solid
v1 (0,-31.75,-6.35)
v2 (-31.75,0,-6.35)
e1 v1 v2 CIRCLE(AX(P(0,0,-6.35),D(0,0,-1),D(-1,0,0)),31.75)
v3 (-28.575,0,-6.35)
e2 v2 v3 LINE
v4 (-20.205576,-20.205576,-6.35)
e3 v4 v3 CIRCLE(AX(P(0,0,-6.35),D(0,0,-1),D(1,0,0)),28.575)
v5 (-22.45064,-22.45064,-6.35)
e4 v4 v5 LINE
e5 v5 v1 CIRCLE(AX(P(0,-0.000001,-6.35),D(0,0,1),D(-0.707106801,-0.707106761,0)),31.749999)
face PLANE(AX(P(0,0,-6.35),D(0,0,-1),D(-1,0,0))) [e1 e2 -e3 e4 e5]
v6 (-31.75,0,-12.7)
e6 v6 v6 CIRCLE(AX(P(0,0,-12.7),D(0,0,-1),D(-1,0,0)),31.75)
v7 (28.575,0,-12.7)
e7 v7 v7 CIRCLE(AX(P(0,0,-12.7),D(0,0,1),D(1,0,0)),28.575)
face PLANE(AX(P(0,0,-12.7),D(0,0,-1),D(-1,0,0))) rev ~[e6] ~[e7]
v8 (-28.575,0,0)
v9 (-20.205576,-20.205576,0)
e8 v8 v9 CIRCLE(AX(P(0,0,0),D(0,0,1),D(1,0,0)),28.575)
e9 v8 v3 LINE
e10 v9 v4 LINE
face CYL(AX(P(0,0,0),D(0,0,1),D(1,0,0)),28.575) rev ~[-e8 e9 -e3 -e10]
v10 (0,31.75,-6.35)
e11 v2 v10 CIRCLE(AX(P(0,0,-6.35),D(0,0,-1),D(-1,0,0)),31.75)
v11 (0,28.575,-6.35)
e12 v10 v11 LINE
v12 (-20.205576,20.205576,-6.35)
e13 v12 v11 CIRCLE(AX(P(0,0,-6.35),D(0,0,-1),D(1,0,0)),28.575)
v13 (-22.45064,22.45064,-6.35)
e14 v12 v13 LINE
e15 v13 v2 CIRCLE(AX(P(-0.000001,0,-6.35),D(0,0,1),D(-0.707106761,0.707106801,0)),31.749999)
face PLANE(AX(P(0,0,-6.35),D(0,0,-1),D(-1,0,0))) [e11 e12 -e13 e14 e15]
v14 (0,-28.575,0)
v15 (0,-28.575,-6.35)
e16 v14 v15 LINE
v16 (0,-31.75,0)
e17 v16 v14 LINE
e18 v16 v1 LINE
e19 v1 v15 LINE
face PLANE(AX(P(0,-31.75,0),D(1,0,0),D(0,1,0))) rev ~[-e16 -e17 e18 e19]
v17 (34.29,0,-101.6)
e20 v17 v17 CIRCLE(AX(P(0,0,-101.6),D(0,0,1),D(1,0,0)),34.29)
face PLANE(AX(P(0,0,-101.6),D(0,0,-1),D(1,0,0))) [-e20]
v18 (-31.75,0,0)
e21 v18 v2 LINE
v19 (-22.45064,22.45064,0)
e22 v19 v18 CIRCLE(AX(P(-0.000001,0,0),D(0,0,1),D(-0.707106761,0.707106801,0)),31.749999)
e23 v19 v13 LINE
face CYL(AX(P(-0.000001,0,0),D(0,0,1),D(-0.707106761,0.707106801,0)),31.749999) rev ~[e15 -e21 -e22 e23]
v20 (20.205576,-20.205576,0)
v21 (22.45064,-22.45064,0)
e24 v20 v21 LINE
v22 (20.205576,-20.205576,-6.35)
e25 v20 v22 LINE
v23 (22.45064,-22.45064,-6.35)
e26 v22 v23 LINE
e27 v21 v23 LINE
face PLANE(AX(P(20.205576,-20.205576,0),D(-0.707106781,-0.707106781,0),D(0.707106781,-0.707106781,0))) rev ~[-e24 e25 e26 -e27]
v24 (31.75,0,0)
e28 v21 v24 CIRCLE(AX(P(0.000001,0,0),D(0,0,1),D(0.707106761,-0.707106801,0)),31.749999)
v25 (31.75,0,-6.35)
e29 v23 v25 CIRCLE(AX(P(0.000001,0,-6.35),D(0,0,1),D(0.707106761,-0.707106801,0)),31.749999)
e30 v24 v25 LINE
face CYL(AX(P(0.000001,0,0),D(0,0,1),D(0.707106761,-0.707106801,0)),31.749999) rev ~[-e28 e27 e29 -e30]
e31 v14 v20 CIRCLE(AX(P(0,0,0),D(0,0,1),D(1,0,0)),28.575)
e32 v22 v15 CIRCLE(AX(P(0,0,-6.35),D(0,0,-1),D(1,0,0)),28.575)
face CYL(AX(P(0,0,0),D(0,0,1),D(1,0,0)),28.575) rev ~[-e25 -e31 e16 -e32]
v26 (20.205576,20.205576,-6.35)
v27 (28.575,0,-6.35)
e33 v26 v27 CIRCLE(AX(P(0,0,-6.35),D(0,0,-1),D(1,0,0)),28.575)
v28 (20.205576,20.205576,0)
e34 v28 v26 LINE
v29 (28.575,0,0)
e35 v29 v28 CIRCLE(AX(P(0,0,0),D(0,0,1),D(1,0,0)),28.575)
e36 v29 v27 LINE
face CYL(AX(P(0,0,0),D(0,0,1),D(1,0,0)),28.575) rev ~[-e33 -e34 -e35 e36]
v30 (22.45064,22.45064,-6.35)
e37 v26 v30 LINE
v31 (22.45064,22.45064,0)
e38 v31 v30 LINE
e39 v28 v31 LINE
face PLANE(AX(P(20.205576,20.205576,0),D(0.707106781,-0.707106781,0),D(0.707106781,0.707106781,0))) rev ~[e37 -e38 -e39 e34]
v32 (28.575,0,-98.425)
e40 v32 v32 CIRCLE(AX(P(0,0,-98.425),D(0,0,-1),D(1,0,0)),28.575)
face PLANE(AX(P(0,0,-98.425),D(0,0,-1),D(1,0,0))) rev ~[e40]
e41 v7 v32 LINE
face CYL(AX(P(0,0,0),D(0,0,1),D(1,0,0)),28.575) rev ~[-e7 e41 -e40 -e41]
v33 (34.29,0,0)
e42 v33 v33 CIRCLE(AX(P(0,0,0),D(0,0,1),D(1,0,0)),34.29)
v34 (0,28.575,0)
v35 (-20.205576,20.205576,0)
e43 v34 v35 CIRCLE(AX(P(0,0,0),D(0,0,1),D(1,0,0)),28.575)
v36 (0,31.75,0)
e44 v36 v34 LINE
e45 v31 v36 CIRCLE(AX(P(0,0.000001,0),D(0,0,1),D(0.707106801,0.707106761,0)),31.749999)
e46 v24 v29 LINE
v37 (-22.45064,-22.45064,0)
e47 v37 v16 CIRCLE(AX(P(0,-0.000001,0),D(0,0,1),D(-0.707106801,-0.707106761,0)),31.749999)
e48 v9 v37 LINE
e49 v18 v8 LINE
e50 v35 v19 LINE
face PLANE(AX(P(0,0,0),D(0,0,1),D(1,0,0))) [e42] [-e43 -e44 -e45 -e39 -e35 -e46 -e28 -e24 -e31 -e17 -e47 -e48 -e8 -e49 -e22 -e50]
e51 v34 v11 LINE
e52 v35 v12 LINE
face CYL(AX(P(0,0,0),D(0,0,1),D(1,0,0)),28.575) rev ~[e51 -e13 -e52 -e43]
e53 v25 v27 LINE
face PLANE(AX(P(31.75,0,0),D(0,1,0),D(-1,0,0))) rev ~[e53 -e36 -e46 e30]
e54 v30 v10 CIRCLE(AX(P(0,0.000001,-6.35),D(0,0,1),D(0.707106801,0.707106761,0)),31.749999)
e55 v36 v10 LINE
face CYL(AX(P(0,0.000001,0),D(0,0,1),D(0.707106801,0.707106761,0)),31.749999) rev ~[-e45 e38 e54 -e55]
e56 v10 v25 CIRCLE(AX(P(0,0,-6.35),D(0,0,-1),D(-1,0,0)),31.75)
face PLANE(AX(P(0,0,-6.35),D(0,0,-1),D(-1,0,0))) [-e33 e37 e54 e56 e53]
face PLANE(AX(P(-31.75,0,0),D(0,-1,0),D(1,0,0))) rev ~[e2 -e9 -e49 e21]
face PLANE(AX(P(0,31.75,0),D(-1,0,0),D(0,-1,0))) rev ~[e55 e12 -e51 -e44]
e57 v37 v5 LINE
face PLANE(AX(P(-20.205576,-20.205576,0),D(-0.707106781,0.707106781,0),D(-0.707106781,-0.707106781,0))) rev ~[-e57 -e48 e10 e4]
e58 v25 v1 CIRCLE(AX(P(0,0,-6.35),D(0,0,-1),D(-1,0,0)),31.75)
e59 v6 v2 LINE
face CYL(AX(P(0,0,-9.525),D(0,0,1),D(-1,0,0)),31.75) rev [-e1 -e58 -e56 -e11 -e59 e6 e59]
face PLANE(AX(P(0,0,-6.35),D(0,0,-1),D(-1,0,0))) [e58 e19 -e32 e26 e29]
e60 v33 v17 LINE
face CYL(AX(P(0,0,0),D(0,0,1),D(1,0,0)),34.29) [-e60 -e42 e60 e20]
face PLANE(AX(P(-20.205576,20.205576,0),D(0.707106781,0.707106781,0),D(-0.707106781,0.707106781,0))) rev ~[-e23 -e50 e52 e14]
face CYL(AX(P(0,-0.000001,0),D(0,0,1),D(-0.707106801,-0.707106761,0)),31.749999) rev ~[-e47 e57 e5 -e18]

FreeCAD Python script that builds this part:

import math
import FreeCAD as App
import Part
import Sketcher
Q = App.Units.Quantity

doc = App.newDocument("Part")
body = doc.addObject("PartDesign::Body", "Body")

# Sketch on XY plane
sketch1 = body.newObject("Sketcher::SketchObject", "Sketch")
sketch1.AttachmentSupport = (doc.getObject("XY_Plane"), [""])
sketch1.MapMode = "FlatFace"
sketch1.addGeometry(Part.Circle(App.Vector(0, 0, 0), App.Vector(0, 0, 1), 34), False)
sketch1.addGeometry(Part.Circle(App.Vector(0, 0, 0), App.Vector(0, 0, 1), 29), False)
sketch1.addConstraint(Sketcher.Constraint("Coincident", 0, 3, -1, 1))
sketch1.addConstraint(Sketcher.Constraint("Coincident", 1, 3, -1, 1))
sketch1.addConstraint(Sketcher.Constraint("Diameter", 0, Q("2.7 in")))
sketch1.addConstraint(Sketcher.Constraint("Diameter", 1, Q("2.25 in")))
pad1 = body.newObject("PartDesign::Pad", "Pad")
pad1.Profile = sketch1
pad1.Length = Q("4 in")
pad1.Reversed = True

# Sketch on XZ plane
sketch2 = body.newObject("Sketcher::SketchObject", "Sketch001")
sketch2.AttachmentSupport = (doc.getObject("XZ_Plane"), [""])
sketch2.MapMode = "FlatFace"
sketch2.addGeometry(Part.LineSegment(App.Vector(-31.8, -6.3, 0), App.Vector(-31.8, -12.7, 0)), False)
sketch2.addGeometry(Part.LineSegment(App.Vector(-31.8, -12.7, 0), App.Vector(-28.6, -12.7, 0)), False)
sketch2.addGeometry(Part.LineSegment(App.Vector(-28.6, -12.7, 0), App.Vector(-28.6, -6.3, 0)), False)
sketch2.addGeometry(Part.LineSegment(App.Vector(-28.6, -6.3, 0), App.Vector(-31.8, -6.3, 0)), False)
sketch2.addConstraint(Sketcher.Constraint("Coincident", 0, 2, 1, 1))
sketch2.addConstraint(Sketcher.Constraint("Coincident", 1, 2, 2, 1))
sketch2.addConstraint(Sketcher.Constraint("Coincident", 2, 2, 3, 1))
sketch2.addConstraint(Sketcher.Constraint("Coincident", 3, 2, 0, 1))
sketch2.addConstraint(Sketcher.Constraint("Vertical", 0))
sketch2.addConstraint(Sketcher.Constraint("Horizontal", 1))
sketch2.addConstraint(Sketcher.Constraint("Vertical", 2))
sketch2.addConstraint(Sketcher.Constraint("Horizontal", 3))
sketch2.addConstraint(Sketcher.Constraint("DistanceY", 0, 2, 0, 1, Q("0.25 in")))
sketch2.addConstraint(Sketcher.Constraint("DistanceY", 0, 2, -1, 1, Q("0.5 in")))
sketch2.addConstraint(Sketcher.Constraint("DistanceX", 1, 1, 1, 2, Q("0.125 in")))
sketch2.addConstraint(Sketcher.Constraint("DistanceX", 0, 2, -1, 1, Q("1.25 in")))
groove = body.newObject("PartDesign::Groove", "Groove")
groove.Profile = sketch2
groove.ReferenceAxis = (sketch2, ["V_Axis"])
groove.Angle = 360

# Sketch on XY plane
sketch3 = body.newObject("Sketcher::SketchObject", "Sketch002")
sketch3.AttachmentSupport = (doc.getObject("XY_Plane"), [""])
sketch3.MapMode = "FlatFace"
sketch3.addGeometry(Part.LineSegment(App.Vector(20.2, 20.2, 0), App.Vector(22.5, 22.5, 0)), False)
sketch3.addGeometry(Part.ArcOfCircle(Part.Circle(App.Vector(0, 0, 0), App.Vector(0, 0, 1), 31.7), math.radians(45), math.radians(90)), False)
sketch3.addGeometry(Part.LineSegment(App.Vector(0, 31.8, 0), App.Vector(0, 28.6, 0)), False)
sketch3.addGeometry(Part.ArcOfCircle(Part.Circle(App.Vector(0, 0, 0), App.Vector(0, 0, 1), 28.6), math.radians(45), math.radians(90)), False)
sketch3.addGeometry(Part.LineSegment(App.Vector(-20.2, 20.2, 0), App.Vector(-22.5, 22.5, 0)), False)
sketch3.addGeometry(Part.ArcOfCircle(Part.Circle(App.Vector(0, 0, 0), App.Vector(0, 0, 1), 31.7), math.radians(135), math.radians(180)), False)
sketch3.addGeometry(Part.LineSegment(App.Vector(-31.8, 0, 0), App.Vector(-28.6, 0, 0)), False)
sketch3.addGeometry(Part.ArcOfCircle(Part.Circle(App.Vector(0, 0, 0), App.Vector(0, 0, 1), 28.6), math.radians(135), math.radians(180)), False)
sketch3.addGeometry(Part.ArcOfCircle(Part.Circle(App.Vector(0, 0, 0), App.Vector(0, 0, 1), 31.7), math.radians(-135), math.radians(-90)), False)
sketch3.addGeometry(Part.LineSegment(App.Vector(0, -31.8, 0), App.Vector(0, -28.6, 0)), False)
sketch3.addGeometry(Part.ArcOfCircle(Part.Circle(App.Vector(0, 0, 0), App.Vector(0, 0, 1), 28.6), math.radians(-135), math.radians(-90)), False)
sketch3.addGeometry(Part.LineSegment(App.Vector(-20.2, -20.2, 0), App.Vector(-22.5, -22.5, 0)), False)
sketch3.addGeometry(Part.ArcOfCircle(Part.Circle(App.Vector(0, 0, 0), App.Vector(0, 0, 1), 31.7), math.radians(-45), math.radians(0)), False)
sketch3.addGeometry(Part.LineSegment(App.Vector(31.8, 0, 0), App.Vector(28.6, 0, 0)), False)
sketch3.addGeometry(Part.ArcOfCircle(Part.Circle(App.Vector(0, 0, 0), App.Vector(0, 0, 1), 28.6), math.radians(-45), math.radians(0)), False)
sketch3.addGeometry(Part.LineSegment(App.Vector(20.2, -20.2, 0), App.Vector(22.5, -22.5, 0)), False)
sketch3.addConstraint(Sketcher.Constraint("Coincident", 0, 2, 1, 1))
sketch3.addConstraint(Sketcher.Constraint("Coincident", 1, 2, 2, 1))
sketch3.addConstraint(Sketcher.Constraint("Coincident", 2, 2, 3, 2))
sketch3.addConstraint(Sketcher.Constraint("Coincident", 3, 1, 0, 1))
sketch3.addConstraint(Sketcher.Constraint("Coincident", 4, 2, 5, 1))
sketch3.addConstraint(Sketcher.Constraint("Coincident", 5, 2, 6, 1))
sketch3.addConstraint(Sketcher.Constraint("Coincident", 6, 2, 7, 2))
sketch3.addConstraint(Sketcher.Constraint("Coincident", 7, 1, 4, 1))
sketch3.addConstraint(Sketcher.Constraint("Coincident", 8, 2, 9, 1))
sketch3.addConstraint(Sketcher.Constraint("Coincident", 9, 2, 10, 2))
sketch3.addConstraint(Sketcher.Constraint("Coincident", 10, 1, 11, 1))
sketch3.addConstraint(Sketcher.Constraint("Coincident", 11, 2, 8, 1))
sketch3.addConstraint(Sketcher.Constraint("Coincident", 12, 2, 13, 1))
sketch3.addConstraint(Sketcher.Constraint("Coincident", 13, 2, 14, 2))
sketch3.addConstraint(Sketcher.Constraint("Coincident", 14, 1, 15, 1))
sketch3.addConstraint(Sketcher.Constraint("Coincident", 15, 2, 12, 1))
sketch3.addConstraint(Sketcher.Constraint("Vertical", 2))
sketch3.addConstraint(Sketcher.Constraint("Horizontal", 6))
sketch3.addConstraint(Sketcher.Constraint("Vertical", 9))
sketch3.addConstraint(Sketcher.Constraint("Horizontal", 13))
sketch3.addConstraint(Sketcher.Constraint("Coincident", 1, 3, -1, 1))
sketch3.addConstraint(Sketcher.Constraint("Coincident", 3, 3, -1, 1))
sketch3.addConstraint(Sketcher.Constraint("Coincident", 5, 3, -1, 1))
sketch3.addConstraint(Sketcher.Constraint("Coincident", 7, 3, -1, 1))
sketch3.addConstraint(Sketcher.Constraint("Coincident", 8, 3, -1, 1))
sketch3.addConstraint(Sketcher.Constraint("Coincident", 10, 3, -1, 1))
sketch3.addConstraint(Sketcher.Constraint("Coincident", 12, 3, -1, 1))
sketch3.addConstraint(Sketcher.Constraint("Coincident", 14, 3, -1, 1))
sketch3.addConstraint(Sketcher.Constraint("Equal", 1, 5))
sketch3.addConstraint(Sketcher.Constraint("Equal", 3, 7))
sketch3.addConstraint(Sketcher.Constraint("Equal", 5, 8))
sketch3.addConstraint(Sketcher.Constraint("Equal", 7, 10))
sketch3.addConstraint(Sketcher.Constraint("Equal", 8, 12))
sketch3.addConstraint(Sketcher.Constraint("Equal", 10, 14))
sketch3.addConstraint(Sketcher.Constraint("PointOnObject", 1, 2, -2))
sketch3.addConstraint(Sketcher.Constraint("PointOnObject", 5, 2, -1))
sketch3.addConstraint(Sketcher.Constraint("PointOnObject", 8, 2, -2))
sketch3.addConstraint(Sketcher.Constraint("PointOnObject", 12, 2, -1))
sketch3.addConstraint(Sketcher.Constraint("Perpendicular", 0, 4))
sketch3.addConstraint(Sketcher.Constraint("Perpendicular", 4, 11))
sketch3.addConstraint(Sketcher.Constraint("Perpendicular", 11, 15))
sketch3.addConstraint(Sketcher.Constraint("Horizontal", 0, 2, 4, 2))
sketch3.addConstraint(Sketcher.Constraint("Horizontal", 3, 1, 7, 1))
sketch3.addConstraint(Sketcher.Constraint("Horizontal", 10, 1, 14, 1))
sketch3.addConstraint(Sketcher.Constraint("Vertical", 7, 1, 10, 1))
sketch3.addConstraint(Sketcher.Constraint("Radius", 1, Q("1.25 in")))
sketch3.addConstraint(Sketcher.Constraint("DistanceX", 6, 1, 6, 2, Q("0.125 in")))
sketch3.addConstraint(Sketcher.Constraint("DistanceX", -1, 1, 0, 2, Q("22.45064 mm")))
pocket1 = body.newObject("PartDesign::Pocket", "Pocket")
pocket1.Profile = sketch3
pocket1.Length = Q("0.25 in")

# Sketch on XY plane
sketch4 = body.newObject("Sketcher::SketchObject", "Sketch003")
sketch4.AttachmentSupport = (doc.getObject("XY_Plane"), [""])
sketch4.MapMode = "FlatFace"
sketch4.AttachmentOffset = App.Placement(App.Vector(0, 0, -4 * 25.4), App.Rotation())
sketch4.addGeometry(Part.Circle(App.Vector(0, 0, 0), App.Vector(0, 0, 1), 29), False)
sketch4.addConstraint(Sketcher.Constraint("Coincident", 0, 3, -1, 1))
sketch4.addConstraint(Sketcher.Constraint("Diameter", 0, Q("2.25 in")))
pad2 = body.newObject("PartDesign::Pad", "Pad001")
pad2.Profile = sketch4
pad2.Length = Q("0.125 in")

doc.recompute()
